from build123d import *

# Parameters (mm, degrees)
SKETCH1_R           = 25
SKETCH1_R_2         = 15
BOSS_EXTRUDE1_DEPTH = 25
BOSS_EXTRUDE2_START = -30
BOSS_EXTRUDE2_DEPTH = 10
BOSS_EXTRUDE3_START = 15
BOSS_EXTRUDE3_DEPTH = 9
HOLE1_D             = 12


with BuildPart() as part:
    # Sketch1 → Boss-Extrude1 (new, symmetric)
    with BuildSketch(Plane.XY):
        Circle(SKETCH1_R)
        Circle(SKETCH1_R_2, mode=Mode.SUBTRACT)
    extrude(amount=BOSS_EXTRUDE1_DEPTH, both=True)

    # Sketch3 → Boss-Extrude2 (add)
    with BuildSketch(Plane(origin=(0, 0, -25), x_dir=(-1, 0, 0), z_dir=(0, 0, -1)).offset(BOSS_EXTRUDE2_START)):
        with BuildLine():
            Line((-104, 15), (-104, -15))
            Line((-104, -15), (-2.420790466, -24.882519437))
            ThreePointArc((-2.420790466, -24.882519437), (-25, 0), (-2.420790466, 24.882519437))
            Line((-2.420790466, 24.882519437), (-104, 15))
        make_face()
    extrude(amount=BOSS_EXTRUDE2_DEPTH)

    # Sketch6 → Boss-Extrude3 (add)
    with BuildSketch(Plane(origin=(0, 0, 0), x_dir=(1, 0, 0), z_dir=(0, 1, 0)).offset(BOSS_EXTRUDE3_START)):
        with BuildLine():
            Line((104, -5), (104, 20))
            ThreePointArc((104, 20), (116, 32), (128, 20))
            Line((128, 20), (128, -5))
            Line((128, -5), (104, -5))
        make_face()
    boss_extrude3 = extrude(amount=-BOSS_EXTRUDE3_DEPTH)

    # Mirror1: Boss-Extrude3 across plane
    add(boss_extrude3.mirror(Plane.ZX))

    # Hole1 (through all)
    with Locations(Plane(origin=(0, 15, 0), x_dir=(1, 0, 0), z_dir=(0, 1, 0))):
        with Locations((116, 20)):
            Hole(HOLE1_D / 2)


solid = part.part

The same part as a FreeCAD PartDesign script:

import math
import FreeCAD as App
import Part
import Sketcher
from FreeCAD import Vector

doc = App.newDocument("Part")
body = doc.addObject("PartDesign::Body", "Body")

sketch1 = body.newObject("Sketcher::SketchObject", "Sketch")
sketch1.AttachmentSupport = (doc.getObject("XY_Plane"), [""])
sketch1.MapMode = "FlatFace"
sketch1.addGeometry(Part.Circle(Vector(0, 0, 0), Vector(0, 0, 1), 25), False)
sketch1.addGeometry(Part.Circle(Vector(0, 0, 0), Vector(0, 0, 1), 15), False)
sketch1.addConstraint(Sketcher.Constraint("Coincident", 0, 3, -1, 1))
sketch1.addConstraint(Sketcher.Constraint("Coincident", 1, 3, -1, 1))
sketch1.addConstraint(Sketcher.Constraint("Diameter", 0, 50.0))
sketch1.addConstraint(Sketcher.Constraint("Diameter", 1, 30.0))
pad1 = body.newObject("PartDesign::Pad", "Pad")
pad1.Profile = sketch1
pad1.Length = 50
pad1.Midplane = True

sketch2 = body.newObject("Sketcher::SketchObject", "Sketch001")
sketch2.AttachmentSupport = (doc.getObject("XY_Plane"), [""])
sketch2.MapMode = "FlatFace"
sketch2.AttachmentOffset = App.Placement(Vector(0, 0, 5), App.Rotation())
sketch2.addGeometry(Part.LineSegment(Vector(104, 15, 0), Vector(104, -15, 0)), False)
sketch2.addGeometry(Part.LineSegment(Vector(104, -15, 0), Vector(2, -25, 0)), False)
sketch2.addGeometry(Part.ArcOfCircle(Part.Circle(Vector(0, 0, 0), Vector(0, 0, 1), 25), math.radians(-84), math.radians(84)), False)
sketch2.addGeometry(Part.LineSegment(Vector(2, 25, 0), Vector(104, 15, 0)), False)
sketch2.addConstraint(Sketcher.Constraint("Coincident", 0, 2, 1, 1))
sketch2.addConstraint(Sketcher.Constraint("Tangent", 1, 2, 2, 1))
sketch2.addConstraint(Sketcher.Constraint("Tangent", 2, 2, 3, 1))
sketch2.addConstraint(Sketcher.Constraint("Coincident", 3, 2, 0, 1))
sketch2.addConstraint(Sketcher.Constraint("Vertical", 0))
sketch2.addConstraint(Sketcher.Constraint("Coincident", 2, 3, -1, 1))
sketch2.addConstraint(Sketcher.Constraint("Vertical", 1, 2, 2, 2))
sketch2.addConstraint(Sketcher.Constraint("Radius", 2, 25.0))
sketch2.addConstraint(Sketcher.Constraint("DistanceY", 0, 2, 0, 1, 30.0))
sketch2.addConstraint(Sketcher.Constraint("DistanceX", -1, 1, 0, 2, 104.0))
pad2 = body.newObject("PartDesign::Pad", "Pad001")
pad2.Profile = sketch2
pad2.Length = 10
pad2.Reversed = True

sketch3 = body.newObject("Sketcher::SketchObject", "Sketch002")
sketch3.AttachmentSupport = (doc.getObject("XZ_Plane"), [""])
sketch3.MapMode = "FlatFace"
sketch3.AttachmentOffset = App.Placement(Vector(0, 0, -15), App.Rotation())
sketch3.addGeometry(Part.LineSegment(Vector(104, -20, 0), Vector(104, 5, 0)), False)
sketch3.addGeometry(Part.LineSegment(Vector(104, 5, 0), Vector(128, 5, 0)), False)
sketch3.addGeometry(Part.LineSegment(Vector(128, 5, 0), Vector(128, -20, 0)), False)
sketch3.addGeometry(Part.ArcOfCircle(Part.Circle(Vector(116, -20, 0), Vector(0, 0, 1), 12), math.radians(180), math.radians(360)), False)
sketch3.addConstraint(Sketcher.Constraint("Coincident", 0, 2, 1, 1))
sketch3.addConstraint(Sketcher.Constraint("Coincident", 1, 2, 2, 1))
sketch3.addConstraint(Sketcher.Constraint("Tangent", 2, 2, 3, 2))
sketch3.addConstraint(Sketcher.Constraint("Tangent", 3, 1, 0, 1))
sketch3.addConstraint(Sketcher.Constraint("Vertical", 0))
sketch3.addConstraint(Sketcher.Constraint("Horizontal", 1))
sketch3.addConstraint(Sketcher.Constraint("Vertical", 2))
sketch3.addConstraint(Sketcher.Constraint("Radius", 3, 12.0))
sketch3.addConstraint(Sketcher.Constraint("DistanceY", 0, 1, 0, 2, 25.0))
sketch3.addConstraint(Sketcher.Constraint("DistanceX", -1, 1, 3, 3, 116.0))
sketch3.addConstraint(Sketcher.Constraint("DistanceY", 3, 3, -1, 1, 20.0))
pad3 = body.newObject("PartDesign::Pad", "Pad002")
pad3.Profile = sketch3
pad3.Length = 9
doc.recompute()

mirrored = body.newObject("PartDesign::Mirrored", "Mirrored")
mirrored.Originals = [pad3]
mirrored.MirrorPlane = (doc.getObject("XZ_Plane"), [""])
body.Tip = mirrored

sketch4 = body.newObject("Sketcher::SketchObject", "Sketch003")
sketch4.AttachmentSupport = (doc.getObject("XZ_Plane"), [""])
sketch4.MapMode = "FlatFace"
sketch4.AttachmentOffset = App.Placement(Vector(0, 0, -15), App.Rotation())
sketch4.addGeometry(Part.Circle(Vector(116, -20, 0), Vector(0, 0, 1), 6), False)
sketch4.addConstraint(Sketcher.Constraint("Diameter", 0, 12.0))
sketch4.addConstraint(Sketcher.Constraint("DistanceX", -1, 1, 0, 3, 116.0))
sketch4.addConstraint(Sketcher.Constraint("DistanceY", 0, 3, -1, 1, 20.0))
doc.recompute()
hole = body.newObject("PartDesign::Hole", "Hole")
hole.Profile = sketch4
hole.ThreadType = "None"
hole.Diameter = 12
hole.DepthType = "ThroughAll"
hole.Reversed = True

doc.recompute()
